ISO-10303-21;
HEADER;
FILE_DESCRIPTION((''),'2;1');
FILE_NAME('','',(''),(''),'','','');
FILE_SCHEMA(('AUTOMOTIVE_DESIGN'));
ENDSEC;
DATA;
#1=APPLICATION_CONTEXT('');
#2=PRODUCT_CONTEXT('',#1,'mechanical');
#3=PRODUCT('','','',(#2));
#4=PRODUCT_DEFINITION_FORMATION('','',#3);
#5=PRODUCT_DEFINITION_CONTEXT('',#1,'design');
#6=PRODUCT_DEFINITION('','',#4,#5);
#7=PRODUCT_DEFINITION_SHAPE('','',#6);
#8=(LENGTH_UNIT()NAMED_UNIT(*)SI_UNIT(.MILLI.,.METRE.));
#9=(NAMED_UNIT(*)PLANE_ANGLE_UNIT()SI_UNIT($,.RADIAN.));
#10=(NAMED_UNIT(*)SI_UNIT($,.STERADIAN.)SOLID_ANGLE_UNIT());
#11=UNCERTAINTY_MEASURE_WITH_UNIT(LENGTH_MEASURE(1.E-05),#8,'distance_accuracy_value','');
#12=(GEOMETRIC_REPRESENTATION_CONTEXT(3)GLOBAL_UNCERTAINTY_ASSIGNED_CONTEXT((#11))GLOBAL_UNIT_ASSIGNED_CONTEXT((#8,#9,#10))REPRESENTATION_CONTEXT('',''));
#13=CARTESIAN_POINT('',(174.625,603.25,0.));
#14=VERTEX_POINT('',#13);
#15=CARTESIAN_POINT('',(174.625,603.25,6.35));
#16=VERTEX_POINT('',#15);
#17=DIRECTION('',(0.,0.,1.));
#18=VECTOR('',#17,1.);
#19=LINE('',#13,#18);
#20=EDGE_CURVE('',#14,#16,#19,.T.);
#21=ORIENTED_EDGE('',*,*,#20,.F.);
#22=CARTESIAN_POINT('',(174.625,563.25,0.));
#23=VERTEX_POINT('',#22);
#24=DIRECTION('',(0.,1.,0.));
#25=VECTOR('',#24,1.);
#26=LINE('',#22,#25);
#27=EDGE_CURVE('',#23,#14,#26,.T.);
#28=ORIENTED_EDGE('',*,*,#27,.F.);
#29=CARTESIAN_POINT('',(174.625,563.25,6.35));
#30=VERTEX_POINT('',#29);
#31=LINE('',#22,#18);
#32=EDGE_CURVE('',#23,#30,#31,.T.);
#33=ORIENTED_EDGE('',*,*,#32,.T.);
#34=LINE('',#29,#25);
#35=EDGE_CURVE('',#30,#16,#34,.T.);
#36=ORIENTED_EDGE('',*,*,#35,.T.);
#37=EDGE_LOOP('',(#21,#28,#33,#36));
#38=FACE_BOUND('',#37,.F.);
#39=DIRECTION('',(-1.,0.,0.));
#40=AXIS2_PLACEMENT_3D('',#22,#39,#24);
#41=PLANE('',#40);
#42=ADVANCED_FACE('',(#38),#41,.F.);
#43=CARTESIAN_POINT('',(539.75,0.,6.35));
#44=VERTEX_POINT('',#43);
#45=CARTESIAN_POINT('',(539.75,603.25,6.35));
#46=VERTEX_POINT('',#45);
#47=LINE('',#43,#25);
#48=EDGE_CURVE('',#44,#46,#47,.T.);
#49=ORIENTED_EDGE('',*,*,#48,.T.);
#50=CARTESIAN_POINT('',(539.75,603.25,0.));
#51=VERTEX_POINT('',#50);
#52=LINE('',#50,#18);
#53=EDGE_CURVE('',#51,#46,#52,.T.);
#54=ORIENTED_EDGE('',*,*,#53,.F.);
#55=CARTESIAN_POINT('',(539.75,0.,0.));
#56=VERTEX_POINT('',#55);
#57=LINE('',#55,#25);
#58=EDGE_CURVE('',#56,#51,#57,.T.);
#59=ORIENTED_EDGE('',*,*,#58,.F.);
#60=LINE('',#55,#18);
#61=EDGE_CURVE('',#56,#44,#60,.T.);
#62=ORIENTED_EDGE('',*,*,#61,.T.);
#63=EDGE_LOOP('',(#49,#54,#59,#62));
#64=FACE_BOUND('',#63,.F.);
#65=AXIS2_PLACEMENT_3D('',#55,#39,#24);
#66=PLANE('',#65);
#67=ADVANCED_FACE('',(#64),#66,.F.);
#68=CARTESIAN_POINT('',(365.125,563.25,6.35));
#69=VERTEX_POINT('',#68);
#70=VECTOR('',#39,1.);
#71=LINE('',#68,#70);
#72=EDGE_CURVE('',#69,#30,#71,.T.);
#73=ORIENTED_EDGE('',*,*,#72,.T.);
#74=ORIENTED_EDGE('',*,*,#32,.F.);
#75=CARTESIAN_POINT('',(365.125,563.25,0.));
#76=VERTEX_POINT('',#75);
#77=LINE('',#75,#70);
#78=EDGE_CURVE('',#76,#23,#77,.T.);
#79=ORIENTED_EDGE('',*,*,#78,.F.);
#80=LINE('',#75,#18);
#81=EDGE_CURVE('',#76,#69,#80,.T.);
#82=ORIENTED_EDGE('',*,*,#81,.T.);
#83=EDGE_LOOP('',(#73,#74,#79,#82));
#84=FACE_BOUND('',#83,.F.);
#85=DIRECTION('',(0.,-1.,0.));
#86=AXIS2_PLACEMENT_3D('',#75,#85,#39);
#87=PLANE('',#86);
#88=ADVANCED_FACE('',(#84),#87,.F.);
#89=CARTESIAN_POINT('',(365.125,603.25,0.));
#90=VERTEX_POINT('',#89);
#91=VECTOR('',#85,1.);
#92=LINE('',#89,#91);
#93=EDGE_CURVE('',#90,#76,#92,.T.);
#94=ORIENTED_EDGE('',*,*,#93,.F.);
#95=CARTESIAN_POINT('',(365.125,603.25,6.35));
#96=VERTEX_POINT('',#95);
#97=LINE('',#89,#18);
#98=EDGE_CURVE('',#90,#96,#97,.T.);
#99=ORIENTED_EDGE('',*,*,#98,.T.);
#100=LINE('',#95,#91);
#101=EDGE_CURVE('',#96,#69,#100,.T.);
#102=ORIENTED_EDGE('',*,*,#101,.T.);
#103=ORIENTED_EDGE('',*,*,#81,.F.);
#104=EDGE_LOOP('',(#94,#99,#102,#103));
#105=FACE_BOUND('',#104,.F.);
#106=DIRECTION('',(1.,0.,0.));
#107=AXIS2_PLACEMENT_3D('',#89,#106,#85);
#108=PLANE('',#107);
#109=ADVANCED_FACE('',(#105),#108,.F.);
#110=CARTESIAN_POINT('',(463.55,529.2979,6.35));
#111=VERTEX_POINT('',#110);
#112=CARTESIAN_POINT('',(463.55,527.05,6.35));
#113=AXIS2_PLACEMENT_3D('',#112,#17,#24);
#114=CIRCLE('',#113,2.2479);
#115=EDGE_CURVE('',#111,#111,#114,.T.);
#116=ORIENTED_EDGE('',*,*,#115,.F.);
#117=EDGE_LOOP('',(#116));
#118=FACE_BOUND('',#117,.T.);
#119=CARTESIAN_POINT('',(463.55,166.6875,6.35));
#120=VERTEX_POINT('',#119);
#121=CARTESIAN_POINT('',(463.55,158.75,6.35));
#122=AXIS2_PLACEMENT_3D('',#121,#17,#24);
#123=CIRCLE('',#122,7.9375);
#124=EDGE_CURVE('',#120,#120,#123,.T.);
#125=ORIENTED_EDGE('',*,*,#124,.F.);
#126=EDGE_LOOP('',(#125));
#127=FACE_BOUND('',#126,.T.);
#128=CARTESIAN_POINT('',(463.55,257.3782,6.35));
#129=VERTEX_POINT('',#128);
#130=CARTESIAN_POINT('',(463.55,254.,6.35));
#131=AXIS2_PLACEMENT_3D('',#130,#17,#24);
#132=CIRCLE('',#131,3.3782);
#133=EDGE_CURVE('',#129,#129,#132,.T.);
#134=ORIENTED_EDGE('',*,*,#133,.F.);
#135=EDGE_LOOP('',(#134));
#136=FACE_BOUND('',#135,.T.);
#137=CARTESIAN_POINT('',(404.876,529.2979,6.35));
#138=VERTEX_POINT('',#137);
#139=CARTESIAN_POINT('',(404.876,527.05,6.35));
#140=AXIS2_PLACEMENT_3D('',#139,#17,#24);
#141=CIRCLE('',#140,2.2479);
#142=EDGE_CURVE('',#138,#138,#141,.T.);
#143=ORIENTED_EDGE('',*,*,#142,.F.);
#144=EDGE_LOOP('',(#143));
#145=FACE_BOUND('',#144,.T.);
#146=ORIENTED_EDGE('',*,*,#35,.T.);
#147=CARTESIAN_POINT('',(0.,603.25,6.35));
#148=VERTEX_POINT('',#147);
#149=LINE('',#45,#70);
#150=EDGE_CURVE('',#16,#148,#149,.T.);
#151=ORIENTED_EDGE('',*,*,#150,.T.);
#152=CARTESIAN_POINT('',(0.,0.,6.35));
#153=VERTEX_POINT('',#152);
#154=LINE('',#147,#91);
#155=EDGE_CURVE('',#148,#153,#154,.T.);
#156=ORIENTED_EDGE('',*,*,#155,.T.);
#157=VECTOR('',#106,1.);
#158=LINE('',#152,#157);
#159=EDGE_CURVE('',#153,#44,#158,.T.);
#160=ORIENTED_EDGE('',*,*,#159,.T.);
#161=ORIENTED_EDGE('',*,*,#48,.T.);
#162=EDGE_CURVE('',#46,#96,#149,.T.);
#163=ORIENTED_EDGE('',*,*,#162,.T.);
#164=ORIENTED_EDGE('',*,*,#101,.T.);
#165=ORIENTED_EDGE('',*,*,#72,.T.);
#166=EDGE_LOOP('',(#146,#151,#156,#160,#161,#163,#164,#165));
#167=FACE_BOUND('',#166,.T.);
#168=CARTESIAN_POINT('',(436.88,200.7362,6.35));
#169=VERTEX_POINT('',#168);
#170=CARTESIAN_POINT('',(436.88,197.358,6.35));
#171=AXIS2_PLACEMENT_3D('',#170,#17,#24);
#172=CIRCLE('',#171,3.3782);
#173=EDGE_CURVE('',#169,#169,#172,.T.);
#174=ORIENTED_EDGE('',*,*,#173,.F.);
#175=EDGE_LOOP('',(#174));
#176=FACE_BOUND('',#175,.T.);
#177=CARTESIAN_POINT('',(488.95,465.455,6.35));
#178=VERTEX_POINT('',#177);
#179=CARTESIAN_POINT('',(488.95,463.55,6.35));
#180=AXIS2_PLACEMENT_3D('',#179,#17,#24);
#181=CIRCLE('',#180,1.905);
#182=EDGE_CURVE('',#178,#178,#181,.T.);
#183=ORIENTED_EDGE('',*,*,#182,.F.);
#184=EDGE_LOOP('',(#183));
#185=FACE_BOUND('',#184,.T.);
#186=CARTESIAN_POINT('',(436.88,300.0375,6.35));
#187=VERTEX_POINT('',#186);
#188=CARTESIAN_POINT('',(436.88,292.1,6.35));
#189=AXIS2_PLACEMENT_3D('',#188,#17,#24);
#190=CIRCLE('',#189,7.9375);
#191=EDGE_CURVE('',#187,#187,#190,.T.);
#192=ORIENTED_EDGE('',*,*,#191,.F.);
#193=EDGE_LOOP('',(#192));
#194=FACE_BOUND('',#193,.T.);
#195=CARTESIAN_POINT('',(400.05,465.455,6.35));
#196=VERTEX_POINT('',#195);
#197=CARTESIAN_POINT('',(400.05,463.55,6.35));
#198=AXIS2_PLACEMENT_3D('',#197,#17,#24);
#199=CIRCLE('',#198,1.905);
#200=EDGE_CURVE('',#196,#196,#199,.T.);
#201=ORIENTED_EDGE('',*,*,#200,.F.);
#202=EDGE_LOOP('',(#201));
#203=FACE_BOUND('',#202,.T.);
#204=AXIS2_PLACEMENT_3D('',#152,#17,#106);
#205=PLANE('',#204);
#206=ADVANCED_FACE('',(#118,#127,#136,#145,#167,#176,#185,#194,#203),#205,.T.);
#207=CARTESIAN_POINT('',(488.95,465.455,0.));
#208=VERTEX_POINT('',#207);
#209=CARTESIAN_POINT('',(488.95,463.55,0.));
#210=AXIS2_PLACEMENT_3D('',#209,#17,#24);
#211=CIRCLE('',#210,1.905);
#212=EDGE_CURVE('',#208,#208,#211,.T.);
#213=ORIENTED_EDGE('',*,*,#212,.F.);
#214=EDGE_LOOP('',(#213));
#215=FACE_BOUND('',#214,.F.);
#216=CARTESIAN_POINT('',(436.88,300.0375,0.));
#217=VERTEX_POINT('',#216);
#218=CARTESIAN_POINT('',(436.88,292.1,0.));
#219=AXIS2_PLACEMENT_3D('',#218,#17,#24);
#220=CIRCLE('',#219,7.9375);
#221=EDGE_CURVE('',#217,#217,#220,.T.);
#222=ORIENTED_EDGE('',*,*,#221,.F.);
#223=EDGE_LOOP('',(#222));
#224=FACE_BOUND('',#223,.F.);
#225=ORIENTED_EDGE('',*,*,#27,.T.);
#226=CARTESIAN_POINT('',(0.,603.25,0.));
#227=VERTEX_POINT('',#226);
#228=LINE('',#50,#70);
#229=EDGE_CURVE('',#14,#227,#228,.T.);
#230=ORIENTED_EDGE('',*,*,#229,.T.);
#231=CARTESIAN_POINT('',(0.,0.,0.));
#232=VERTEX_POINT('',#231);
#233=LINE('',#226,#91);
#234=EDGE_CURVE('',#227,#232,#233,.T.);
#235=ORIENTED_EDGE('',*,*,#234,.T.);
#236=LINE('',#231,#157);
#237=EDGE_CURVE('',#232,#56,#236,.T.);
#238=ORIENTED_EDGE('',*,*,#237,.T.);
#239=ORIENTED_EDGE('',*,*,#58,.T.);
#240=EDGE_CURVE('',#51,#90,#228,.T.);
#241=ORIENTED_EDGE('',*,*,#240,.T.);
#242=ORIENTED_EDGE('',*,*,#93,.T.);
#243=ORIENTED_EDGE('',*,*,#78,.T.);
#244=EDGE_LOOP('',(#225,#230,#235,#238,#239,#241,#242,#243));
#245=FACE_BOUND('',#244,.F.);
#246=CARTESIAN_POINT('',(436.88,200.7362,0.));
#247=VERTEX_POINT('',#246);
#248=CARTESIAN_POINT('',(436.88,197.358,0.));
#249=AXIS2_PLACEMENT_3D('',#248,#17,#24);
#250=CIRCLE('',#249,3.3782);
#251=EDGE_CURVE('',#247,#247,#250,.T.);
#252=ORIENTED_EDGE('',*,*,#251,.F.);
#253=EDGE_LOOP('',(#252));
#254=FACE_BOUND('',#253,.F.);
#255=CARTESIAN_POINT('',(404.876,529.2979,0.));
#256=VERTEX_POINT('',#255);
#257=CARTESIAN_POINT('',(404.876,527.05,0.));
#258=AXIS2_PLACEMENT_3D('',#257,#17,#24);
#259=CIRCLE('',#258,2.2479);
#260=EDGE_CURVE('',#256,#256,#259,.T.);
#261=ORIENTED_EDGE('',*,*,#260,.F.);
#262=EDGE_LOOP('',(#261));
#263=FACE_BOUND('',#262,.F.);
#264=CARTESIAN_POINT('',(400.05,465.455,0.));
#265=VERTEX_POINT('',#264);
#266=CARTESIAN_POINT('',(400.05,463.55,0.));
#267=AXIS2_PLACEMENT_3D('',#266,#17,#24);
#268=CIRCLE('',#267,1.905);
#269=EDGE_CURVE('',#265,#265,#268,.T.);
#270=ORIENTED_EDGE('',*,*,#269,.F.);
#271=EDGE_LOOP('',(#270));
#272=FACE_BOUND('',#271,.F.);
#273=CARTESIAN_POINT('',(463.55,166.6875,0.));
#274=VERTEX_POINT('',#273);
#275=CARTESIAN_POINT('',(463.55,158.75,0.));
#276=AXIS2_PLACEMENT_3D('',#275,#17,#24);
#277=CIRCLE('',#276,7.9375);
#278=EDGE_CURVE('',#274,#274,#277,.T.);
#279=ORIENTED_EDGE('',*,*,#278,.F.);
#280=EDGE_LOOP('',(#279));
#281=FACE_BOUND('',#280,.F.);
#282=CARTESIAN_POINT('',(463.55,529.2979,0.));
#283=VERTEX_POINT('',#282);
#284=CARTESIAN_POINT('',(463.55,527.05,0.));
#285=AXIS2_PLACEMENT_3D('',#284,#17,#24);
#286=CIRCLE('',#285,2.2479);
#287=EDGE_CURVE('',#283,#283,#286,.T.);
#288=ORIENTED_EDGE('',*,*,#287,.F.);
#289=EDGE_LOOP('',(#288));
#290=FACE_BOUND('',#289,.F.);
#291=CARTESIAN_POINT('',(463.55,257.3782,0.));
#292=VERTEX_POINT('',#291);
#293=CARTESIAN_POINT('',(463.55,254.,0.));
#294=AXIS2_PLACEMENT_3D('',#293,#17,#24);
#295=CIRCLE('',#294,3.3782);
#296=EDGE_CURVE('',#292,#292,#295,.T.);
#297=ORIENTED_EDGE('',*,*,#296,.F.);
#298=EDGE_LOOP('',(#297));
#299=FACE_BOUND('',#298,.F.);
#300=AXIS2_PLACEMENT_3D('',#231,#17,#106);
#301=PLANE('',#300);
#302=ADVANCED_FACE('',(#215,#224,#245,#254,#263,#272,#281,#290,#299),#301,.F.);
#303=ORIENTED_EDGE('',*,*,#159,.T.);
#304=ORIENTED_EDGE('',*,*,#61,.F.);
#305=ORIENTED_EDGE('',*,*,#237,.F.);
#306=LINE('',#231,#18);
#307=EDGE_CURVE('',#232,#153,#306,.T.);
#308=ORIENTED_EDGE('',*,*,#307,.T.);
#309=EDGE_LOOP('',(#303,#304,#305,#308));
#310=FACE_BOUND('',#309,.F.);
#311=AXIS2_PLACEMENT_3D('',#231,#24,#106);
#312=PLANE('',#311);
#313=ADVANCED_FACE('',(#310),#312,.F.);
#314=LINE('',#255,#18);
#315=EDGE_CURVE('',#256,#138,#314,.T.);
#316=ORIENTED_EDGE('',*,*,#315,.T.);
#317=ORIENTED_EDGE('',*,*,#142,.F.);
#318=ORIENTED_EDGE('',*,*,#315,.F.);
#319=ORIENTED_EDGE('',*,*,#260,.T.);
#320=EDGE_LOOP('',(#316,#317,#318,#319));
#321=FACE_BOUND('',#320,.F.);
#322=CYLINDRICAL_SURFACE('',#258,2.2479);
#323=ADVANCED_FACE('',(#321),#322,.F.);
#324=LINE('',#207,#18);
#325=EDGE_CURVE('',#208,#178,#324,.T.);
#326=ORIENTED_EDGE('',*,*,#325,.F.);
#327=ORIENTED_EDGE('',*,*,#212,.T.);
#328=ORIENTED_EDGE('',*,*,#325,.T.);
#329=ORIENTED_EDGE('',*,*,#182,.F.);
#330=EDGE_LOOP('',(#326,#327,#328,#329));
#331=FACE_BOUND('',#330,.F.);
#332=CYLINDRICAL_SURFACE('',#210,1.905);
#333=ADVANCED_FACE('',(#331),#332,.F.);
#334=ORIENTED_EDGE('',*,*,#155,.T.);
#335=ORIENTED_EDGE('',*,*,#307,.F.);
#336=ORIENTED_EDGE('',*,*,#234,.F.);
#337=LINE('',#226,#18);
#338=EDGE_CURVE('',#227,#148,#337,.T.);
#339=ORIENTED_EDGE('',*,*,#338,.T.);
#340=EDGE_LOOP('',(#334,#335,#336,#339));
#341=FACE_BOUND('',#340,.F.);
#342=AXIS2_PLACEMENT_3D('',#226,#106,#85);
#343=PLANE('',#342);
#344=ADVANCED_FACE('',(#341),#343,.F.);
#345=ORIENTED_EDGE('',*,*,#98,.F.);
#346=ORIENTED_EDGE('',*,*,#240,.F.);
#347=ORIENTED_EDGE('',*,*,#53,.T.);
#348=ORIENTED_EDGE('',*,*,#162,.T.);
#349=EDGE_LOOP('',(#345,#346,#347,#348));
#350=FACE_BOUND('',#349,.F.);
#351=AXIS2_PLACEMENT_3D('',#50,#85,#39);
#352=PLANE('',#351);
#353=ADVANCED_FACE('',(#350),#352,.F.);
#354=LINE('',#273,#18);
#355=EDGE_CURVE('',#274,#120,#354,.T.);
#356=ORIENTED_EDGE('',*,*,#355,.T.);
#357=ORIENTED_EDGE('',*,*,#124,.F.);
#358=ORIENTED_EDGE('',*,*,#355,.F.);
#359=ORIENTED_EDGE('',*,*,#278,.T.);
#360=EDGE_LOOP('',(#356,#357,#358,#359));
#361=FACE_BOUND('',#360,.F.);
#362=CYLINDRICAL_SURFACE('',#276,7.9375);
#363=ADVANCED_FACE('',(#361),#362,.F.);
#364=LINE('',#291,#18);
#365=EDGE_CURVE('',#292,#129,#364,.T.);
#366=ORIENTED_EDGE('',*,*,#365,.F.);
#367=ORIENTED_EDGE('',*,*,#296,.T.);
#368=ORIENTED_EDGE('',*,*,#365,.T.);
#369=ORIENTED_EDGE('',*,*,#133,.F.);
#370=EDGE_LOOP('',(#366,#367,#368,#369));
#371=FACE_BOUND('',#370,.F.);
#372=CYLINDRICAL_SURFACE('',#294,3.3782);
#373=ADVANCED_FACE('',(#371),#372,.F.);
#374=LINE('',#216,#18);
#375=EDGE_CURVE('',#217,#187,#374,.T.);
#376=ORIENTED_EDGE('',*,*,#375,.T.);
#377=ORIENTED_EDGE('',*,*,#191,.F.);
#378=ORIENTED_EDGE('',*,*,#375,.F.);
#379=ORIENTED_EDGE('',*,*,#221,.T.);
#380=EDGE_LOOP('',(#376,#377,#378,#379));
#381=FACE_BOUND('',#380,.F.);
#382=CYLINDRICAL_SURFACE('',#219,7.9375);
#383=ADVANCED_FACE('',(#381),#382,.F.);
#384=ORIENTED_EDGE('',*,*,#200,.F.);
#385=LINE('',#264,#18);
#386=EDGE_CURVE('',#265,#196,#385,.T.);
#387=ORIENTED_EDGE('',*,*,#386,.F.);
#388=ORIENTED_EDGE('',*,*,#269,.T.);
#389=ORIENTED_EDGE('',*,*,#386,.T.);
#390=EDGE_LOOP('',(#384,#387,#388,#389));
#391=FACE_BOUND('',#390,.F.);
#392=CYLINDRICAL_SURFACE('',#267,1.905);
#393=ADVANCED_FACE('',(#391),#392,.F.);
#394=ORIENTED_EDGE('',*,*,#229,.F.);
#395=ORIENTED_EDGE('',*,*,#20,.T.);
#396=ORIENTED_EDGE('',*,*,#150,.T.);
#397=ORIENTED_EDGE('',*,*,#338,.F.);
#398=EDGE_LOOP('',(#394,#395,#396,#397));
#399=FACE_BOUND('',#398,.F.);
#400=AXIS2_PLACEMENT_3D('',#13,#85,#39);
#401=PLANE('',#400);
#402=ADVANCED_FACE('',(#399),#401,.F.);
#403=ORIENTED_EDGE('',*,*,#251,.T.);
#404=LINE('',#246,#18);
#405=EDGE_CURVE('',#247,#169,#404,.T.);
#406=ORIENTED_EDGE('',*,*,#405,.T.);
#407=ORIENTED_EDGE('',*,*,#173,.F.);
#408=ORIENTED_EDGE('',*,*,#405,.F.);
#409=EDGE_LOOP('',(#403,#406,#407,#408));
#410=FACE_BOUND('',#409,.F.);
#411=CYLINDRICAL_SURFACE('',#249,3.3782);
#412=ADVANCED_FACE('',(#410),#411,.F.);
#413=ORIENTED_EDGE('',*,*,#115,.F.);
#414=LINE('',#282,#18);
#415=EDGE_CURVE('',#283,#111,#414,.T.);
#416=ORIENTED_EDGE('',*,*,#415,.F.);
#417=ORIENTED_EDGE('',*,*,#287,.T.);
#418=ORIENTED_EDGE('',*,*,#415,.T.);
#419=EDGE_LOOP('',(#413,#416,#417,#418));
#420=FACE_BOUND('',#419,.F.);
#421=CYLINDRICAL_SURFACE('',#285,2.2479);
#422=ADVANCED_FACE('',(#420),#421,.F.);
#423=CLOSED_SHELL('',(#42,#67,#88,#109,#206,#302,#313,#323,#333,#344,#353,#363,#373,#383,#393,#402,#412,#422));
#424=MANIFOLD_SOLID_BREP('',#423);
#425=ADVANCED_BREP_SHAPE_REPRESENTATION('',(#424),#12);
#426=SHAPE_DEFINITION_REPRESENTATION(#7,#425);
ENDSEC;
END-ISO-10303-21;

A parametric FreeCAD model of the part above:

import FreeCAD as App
import Part
import Sketcher
Q = App.Units.Quantity

doc = App.newDocument("Part")
body = doc.addObject("PartDesign::Body", "Body")

sketch1 = body.newObject("Sketcher::SketchObject", "Sketch")
sketch1.AttachmentSupport = (doc.getObject("XY_Plane"), [""])
sketch1.MapMode = "FlatFace"
sketch1.addGeometry([
    Part.LineSegment(App.Vector(0, 603, 0), App.Vector(0, 0, 0)),
    Part.LineSegment(App.Vector(0, 0, 0), App.Vector(540, 0, 0)),
    Part.LineSegment(App.Vector(540, 0, 0), App.Vector(540, 603, 0)),
    Part.LineSegment(App.Vector(540, 603, 0), App.Vector(365, 603, 0)),
    Part.LineSegment(App.Vector(365, 603, 0), App.Vector(365, 563, 0)),
    Part.LineSegment(App.Vector(365, 563, 0), App.Vector(175, 563, 0)),
    Part.LineSegment(App.Vector(175, 563, 0), App.Vector(175, 603, 0)),
    Part.LineSegment(App.Vector(175, 603, 0), App.Vector(0, 603, 0)),
], False)
sketch1.addConstraint([
    Sketcher.Constraint("Coincident", 0, 2, 1, 1),
    Sketcher.Constraint("Coincident", 1, 2, 2, 1),
    Sketcher.Constraint("Coincident", 2, 2, 3, 1),
    Sketcher.Constraint("Coincident", 3, 2, 4, 1),
    Sketcher.Constraint("Coincident", 4, 2, 5, 1),
    Sketcher.Constraint("Coincident", 5, 2, 6, 1),
    Sketcher.Constraint("Coincident", 6, 2, 7, 1),
    Sketcher.Constraint("Coincident", 7, 2, 0, 1),
    Sketcher.Constraint("Vertical", 0),
    Sketcher.Constraint("Horizontal", 1),
    Sketcher.Constraint("Vertical", 2),
    Sketcher.Constraint("Horizontal", 3),
    Sketcher.Constraint("Vertical", 4),
    Sketcher.Constraint("Horizontal", 5),
    Sketcher.Constraint("Vertical", 6),
    Sketcher.Constraint("Horizontal", 7),
    Sketcher.Constraint("Coincident", 0, 2, -1, 1),
    Sketcher.Constraint("Horizontal", 3, 2, 6, 2),
    Sketcher.Constraint("Equal", 3, 7),
    Sketcher.Constraint("DistanceX", 5, 2, 5, 1, Q("7.5 in")),
    Sketcher.Constraint("DistanceX", 1, 1, 1, 2, Q("21.25 in")),
    Sketcher.Constraint("DistanceY", 0, 2, 0, 1, Q("23.75 in")),
    Sketcher.Constraint("DistanceY", 4, 2, 4, 1, Q("1.5748 in")),
])
pad1 = body.newObject("PartDesign::Pad", "Pad")
pad1.Profile = sketch1
pad1.Length = Q("0.25 in")

sketch2 = body.newObject("Sketcher::SketchObject", "Sketch001")
sketch2.AttachmentSupport = (doc.getObject("XY_Plane"), [""])
sketch2.MapMode = "FlatFace"
sketch2.addGeometry(Part.Circle(App.Vector(463.6, 527, 0), App.Vector(0, 0, 1), 2.2), False)
sketch2.addConstraint([
    Sketcher.Constraint("Diameter", 0, Q("0.177 in")),
    Sketcher.Constraint("DistanceX", -1, 1, 0, 3, Q("18.25 in")),
    Sketcher.Constraint("DistanceY", -1, 1, 0, 3, Q("20.75 in")),
])
doc.recompute()
hole = body.newObject("PartDesign::Hole", "Hole")
hole.Profile = sketch2
hole.ThreadType = "None"
hole.Diameter = Q("0.177 in")
hole.DepthType = "ThroughAll"
hole.Reversed = True

sketch3 = body.newObject("Sketcher::SketchObject", "Sketch002")
sketch3.AttachmentSupport = (doc.getObject("XY_Plane"), [""])
sketch3.MapMode = "FlatFace"
sketch3.addGeometry(Part.Circle(App.Vector(404.9, 527, 0), App.Vector(0, 0, 1), 2.2), False)
sketch3.addConstraint([
    Sketcher.Constraint("Diameter", 0, Q("0.177 in")),
    Sketcher.Constraint("DistanceX", -1, 1, 0, 3, Q("15.94 in")),
    Sketcher.Constraint("DistanceY", -1, 1, 0, 3, Q("20.75 in")),
])
doc.recompute()
hole2 = body.newObject("PartDesign::Hole", "Hole001")
hole2.Profile = sketch3
hole2.ThreadType = "None"
hole2.Diameter = Q("0.177 in")
hole2.DepthType = "ThroughAll"
hole2.Reversed = True

sketch4 = body.newObject("Sketcher::SketchObject", "Sketch003")
sketch4.AttachmentSupport = (doc.getObject("XY_Plane"), [""])
sketch4.MapMode = "FlatFace"
sketch4.addGeometry([
    Part.Circle(App.Vector(488.9, 463.6, 0), App.Vector(0, 0, 1), 1.9),
    Part.Circle(App.Vector(400.1, 463.6, 0), App.Vector(0, 0, 1), 1.9),
], False)
sketch4.addConstraint([
    Sketcher.Constraint("Equal", 0, 1),
    Sketcher.Constraint("Horizontal", 0, 3, 1, 3),
    Sketcher.Constraint("Diameter", 0, Q("0.15 in")),
    Sketcher.Constraint("DistanceX", 1, 3, 0, 3, Q("3.5 in")),
    Sketcher.Constraint("DistanceX", -1, 1, 0, 3, Q("19.25 in")),
    Sketcher.Constraint("DistanceY", -1, 1, 0, 3, Q("18.25 in")),
])
doc.recompute()
hole3 = body.newObject("PartDesign::Hole", "Hole002")
hole3.Profile = sketch4
hole3.ThreadType = "None"
hole3.Diameter = Q("0.15 in")
hole3.DepthType = "ThroughAll"
hole3.Reversed = True

sketch5 = body.newObject("Sketcher::SketchObject", "Sketch004")
sketch5.AttachmentSupport = (doc.getObject("XY_Plane"), [""])
sketch5.MapMode = "FlatFace"
sketch5.addGeometry(Part.Circle(App.Vector(463.6, 254, 0), App.Vector(0, 0, 1), 3.4), False)
sketch5.addConstraint([
    Sketcher.Constraint("Diameter", 0, Q("0.266 in")),
    Sketcher.Constraint("DistanceY", -1, 1, 0, 3, Q("10 in")),
    Sketcher.Constraint("DistanceX", -1, 1, 0, 3, Q("18.25 in")),
])
doc.recompute()
hole4 = body.newObject("PartDesign::Hole", "Hole003")
hole4.Profile = sketch5
hole4.ThreadType = "None"
hole4.Diameter = Q("0.266 in")
hole4.DepthType = "ThroughAll"
hole4.Reversed = True

sketch6 = body.newObject("Sketcher::SketchObject", "Sketch005")
sketch6.AttachmentSupport = (doc.getObject("XY_Plane"), [""])
sketch6.MapMode = "FlatFace"
sketch6.addGeometry(Part.Circle(App.Vector(436.9, 197.4, 0), App.Vector(0, 0, 1), 3.4), False)
sketch6.addConstraint([
    Sketcher.Constraint("Diameter", 0, Q("0.266 in")),
    Sketcher.Constraint("DistanceX", -1, 1, 0, 3, Q("17.2 in")),
    Sketcher.Constraint("DistanceY", -1, 1, 0, 3, Q("7.77 in")),
])
doc.recompute()
hole5 = body.newObject("PartDesign::Hole", "Hole004")
hole5.Profile = sketch6
hole5.ThreadType = "None"
hole5.Diameter = Q("0.266 in")
hole5.DepthType = "ThroughAll"
hole5.Reversed = True

sketch7 = body.newObject("Sketcher::SketchObject", "Sketch006")
sketch7.AttachmentSupport = (doc.getObject("XY_Plane"), [""])
sketch7.MapMode = "FlatFace"
sketch7.addGeometry([
    Part.Circle(App.Vector(437, 292, 0), App.Vector(0, 0, 1), 8),
    Part.Circle(App.Vector(464, 159, 0), App.Vector(0, 0, 1), 8),
], False)
sketch7.addConstraint([
    Sketcher.Constraint("Equal", 0, 1),
    Sketcher.Constraint("Diameter", 0, Q("0.625 in")),
    Sketcher.Constraint("DistanceX", -1, 1, 0, 3, Q("17.2 in")),
    Sketcher.Constraint("DistanceY", -1, 1, 0, 3, Q("11.5 in")),
    Sketcher.Constraint("DistanceX", -1, 1, 1, 3, Q("18.25 in")),
    Sketcher.Constraint("DistanceY", -1, 1, 1, 3, Q("6.25 in")),
])
doc.recompute()
hole6 = body.newObject("PartDesign::Hole", "Hole005")
hole6.Profile = sketch7
hole6.ThreadType = "None"
hole6.Diameter = Q("0.625 in")
hole6.DepthType = "ThroughAll"
hole6.Reversed = True

doc.recompute()
